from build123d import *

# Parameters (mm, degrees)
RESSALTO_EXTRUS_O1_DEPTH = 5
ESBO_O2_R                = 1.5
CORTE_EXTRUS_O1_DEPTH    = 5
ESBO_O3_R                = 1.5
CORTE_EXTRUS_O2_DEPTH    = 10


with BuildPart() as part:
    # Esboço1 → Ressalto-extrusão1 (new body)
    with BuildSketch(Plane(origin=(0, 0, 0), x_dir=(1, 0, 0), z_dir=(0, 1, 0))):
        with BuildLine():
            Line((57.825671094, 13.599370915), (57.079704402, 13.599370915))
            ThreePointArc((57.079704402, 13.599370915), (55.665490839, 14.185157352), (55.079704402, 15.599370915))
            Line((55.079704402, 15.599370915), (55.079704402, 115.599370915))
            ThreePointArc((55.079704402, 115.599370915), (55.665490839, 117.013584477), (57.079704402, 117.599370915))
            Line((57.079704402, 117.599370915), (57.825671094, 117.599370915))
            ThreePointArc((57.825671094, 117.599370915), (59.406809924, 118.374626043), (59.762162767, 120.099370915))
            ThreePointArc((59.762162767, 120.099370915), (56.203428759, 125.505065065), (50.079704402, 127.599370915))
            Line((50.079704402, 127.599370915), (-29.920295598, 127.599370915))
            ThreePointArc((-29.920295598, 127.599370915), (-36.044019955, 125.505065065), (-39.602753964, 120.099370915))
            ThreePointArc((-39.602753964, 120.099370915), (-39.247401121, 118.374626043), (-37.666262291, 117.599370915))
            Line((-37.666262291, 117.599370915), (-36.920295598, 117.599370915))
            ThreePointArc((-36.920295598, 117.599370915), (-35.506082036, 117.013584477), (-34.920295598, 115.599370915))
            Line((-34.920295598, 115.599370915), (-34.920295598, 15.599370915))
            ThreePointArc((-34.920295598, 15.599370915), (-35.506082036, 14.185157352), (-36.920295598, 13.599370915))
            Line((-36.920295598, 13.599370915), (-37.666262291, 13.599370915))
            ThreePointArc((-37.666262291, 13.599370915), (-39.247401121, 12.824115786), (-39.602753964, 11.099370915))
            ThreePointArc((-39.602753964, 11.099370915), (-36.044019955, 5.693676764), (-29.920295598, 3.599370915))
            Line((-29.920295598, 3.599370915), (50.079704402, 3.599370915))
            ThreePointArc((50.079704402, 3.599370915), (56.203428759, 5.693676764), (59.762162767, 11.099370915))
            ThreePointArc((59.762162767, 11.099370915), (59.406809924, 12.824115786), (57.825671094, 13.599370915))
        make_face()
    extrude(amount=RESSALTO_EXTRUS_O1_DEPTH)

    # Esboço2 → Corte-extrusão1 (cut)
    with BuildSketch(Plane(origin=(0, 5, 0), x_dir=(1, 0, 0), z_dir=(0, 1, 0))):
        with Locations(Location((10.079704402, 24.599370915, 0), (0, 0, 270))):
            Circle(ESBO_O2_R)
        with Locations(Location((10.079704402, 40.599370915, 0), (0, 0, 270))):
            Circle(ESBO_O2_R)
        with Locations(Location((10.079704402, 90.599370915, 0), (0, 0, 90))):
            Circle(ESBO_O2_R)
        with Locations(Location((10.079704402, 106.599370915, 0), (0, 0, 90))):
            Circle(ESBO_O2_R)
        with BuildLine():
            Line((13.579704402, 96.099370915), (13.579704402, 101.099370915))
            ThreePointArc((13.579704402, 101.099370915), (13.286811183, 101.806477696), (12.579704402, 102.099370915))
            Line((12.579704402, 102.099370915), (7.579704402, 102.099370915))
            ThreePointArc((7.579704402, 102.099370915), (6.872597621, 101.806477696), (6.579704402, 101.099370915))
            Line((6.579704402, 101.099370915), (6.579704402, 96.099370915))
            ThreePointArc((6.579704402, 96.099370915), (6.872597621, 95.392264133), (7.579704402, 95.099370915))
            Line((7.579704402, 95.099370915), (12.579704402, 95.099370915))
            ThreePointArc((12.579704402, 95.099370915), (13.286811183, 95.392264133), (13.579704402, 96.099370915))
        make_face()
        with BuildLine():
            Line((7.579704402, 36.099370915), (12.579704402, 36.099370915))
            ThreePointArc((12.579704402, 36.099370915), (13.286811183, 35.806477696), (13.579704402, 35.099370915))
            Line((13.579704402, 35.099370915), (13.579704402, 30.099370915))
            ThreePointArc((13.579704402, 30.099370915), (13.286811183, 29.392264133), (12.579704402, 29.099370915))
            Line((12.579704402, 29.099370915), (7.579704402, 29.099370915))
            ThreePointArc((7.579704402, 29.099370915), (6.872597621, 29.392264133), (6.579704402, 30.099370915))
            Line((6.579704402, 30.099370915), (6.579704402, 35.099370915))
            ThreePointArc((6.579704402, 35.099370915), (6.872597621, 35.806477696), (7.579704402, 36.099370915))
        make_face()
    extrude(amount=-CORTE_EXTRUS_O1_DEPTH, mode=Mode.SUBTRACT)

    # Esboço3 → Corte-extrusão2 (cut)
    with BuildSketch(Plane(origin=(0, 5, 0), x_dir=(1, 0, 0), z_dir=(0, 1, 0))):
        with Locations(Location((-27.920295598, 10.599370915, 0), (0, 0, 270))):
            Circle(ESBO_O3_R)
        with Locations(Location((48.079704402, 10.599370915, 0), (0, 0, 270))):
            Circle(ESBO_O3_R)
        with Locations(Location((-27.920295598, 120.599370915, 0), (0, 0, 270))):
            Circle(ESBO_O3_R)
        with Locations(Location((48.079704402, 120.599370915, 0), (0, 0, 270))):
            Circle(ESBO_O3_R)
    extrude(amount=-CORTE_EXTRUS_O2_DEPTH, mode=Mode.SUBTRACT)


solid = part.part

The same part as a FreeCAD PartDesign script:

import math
import FreeCAD as App
import Part
import Sketcher
from FreeCAD import Vector

doc = App.newDocument("Part")
body = doc.addObject("PartDesign::Body", "Body")

# Sketch on XZ plane
sketch1 = body.newObject("Sketcher::SketchObject", "Sketch")
sketch1.AttachmentSupport = (doc.getObject("XZ_Plane"), [""])
sketch1.MapMode = "FlatFace"
sketch1.addGeometry([
    Part.LineSegment(Vector(57.8, -13.6, 0), Vector(57.1, -13.6, 0)),  # 0
    Part.ArcOfCircle(Part.Circle(Vector(57.1, -15.6, 0), Vector(0, 0, 1), 2), math.radians(90), math.radians(180)),  # 1
    Part.LineSegment(Vector(55.1, -15.6, 0), Vector(55.1, -115.6, 0)),  # 2
    Part.ArcOfCircle(Part.Circle(Vector(57.1, -115.6, 0), Vector(0, 0, 1), 2), math.radians(180), math.radians(270)),  # 3
    Part.LineSegment(Vector(57.1, -117.6, 0), Vector(57.8, -117.6, 0)),  # 4
    Part.ArcOfCircle(Part.Circle(Vector(57.8, -119.6, 0), Vector(0, 0, 1), 2), math.radians(-14), math.radians(90)),  # 5
    Part.ArcOfCircle(Part.Circle(Vector(50.1, -117.6, 0), Vector(0, 0, 1), 10), math.radians(-90), math.radians(-14)),  # 6
    Part.LineSegment(Vector(50.1, -127.6, 0), Vector(-29.9, -127.6, 0)),  # 7
    Part.ArcOfCircle(Part.Circle(Vector(-29.9, -117.6, 0), Vector(0, 0, 1), 10), math.radians(-166), math.radians(-90)),  # 8
    Part.ArcOfCircle(Part.Circle(Vector(-37.7, -119.6, 0), Vector(0, 0, 1), 2), math.radians(90), math.radians(194)),  # 9
    Part.LineSegment(Vector(-37.7, -117.6, 0), Vector(-36.9, -117.6, 0)),  # 10
    Part.ArcOfCircle(Part.Circle(Vector(-36.9, -115.6, 0), Vector(0, 0, 1), 2), math.radians(-90), math.radians(0)),  # 11
    Part.LineSegment(Vector(-34.9, -115.6, 0), Vector(-34.9, -15.6, 0)),  # 12
    Part.ArcOfCircle(Part.Circle(Vector(-36.9, -15.6, 0), Vector(0, 0, 1), 2), math.radians(0), math.radians(90)),  # 13
    Part.LineSegment(Vector(-36.9, -13.6, 0), Vector(-37.7, -13.6, 0)),  # 14
    Part.ArcOfCircle(Part.Circle(Vector(-37.7, -11.6, 0), Vector(0, 0, 1), 2), math.radians(166), math.radians(270)),  # 15
    Part.ArcOfCircle(Part.Circle(Vector(-29.9, -13.6, 0), Vector(0, 0, 1), 10), math.radians(90), math.radians(166)),  # 16
    Part.LineSegment(Vector(-29.9, -3.6, 0), Vector(50.1, -3.6, 0)),  # 17
    Part.ArcOfCircle(Part.Circle(Vector(50.1, -13.6, 0), Vector(0, 0, 1), 10), math.radians(14), math.radians(90)),  # 18
    Part.ArcOfCircle(Part.Circle(Vector(57.8, -11.6, 0), Vector(0, 0, 1), 2), math.radians(-90), math.radians(14)),  # 19
], False)
sketch1.addConstraint([
    Sketcher.Constraint("Tangent", 0, 2, 1, 1),
    Sketcher.Constraint("Tangent", 1, 2, 2, 1),
    Sketcher.Constraint("Tangent", 2, 2, 3, 1),
    Sketcher.Constraint("Tangent", 3, 2, 4, 1),
    Sketcher.Constraint("Tangent", 4, 2, 5, 2),
    Sketcher.Constraint("Tangent", 5, 1, 6, 2),
    Sketcher.Constraint("Tangent", 6, 1, 7, 1),
    Sketcher.Constraint("Tangent", 7, 2, 8, 2),
    Sketcher.Constraint("Tangent", 8, 1, 9, 2),
    Sketcher.Constraint("Tangent", 9, 1, 10, 1),
    Sketcher.Constraint("Tangent", 10, 2, 11, 1),
    Sketcher.Constraint("Tangent", 11, 2, 12, 1),
    Sketcher.Constraint("Tangent", 12, 2, 13, 1),
    Sketcher.Constraint("Tangent", 13, 2, 14, 1),
    Sketcher.Constraint("Tangent", 14, 2, 15, 2),
    Sketcher.Constraint("Tangent", 15, 1, 16, 2),
    Sketcher.Constraint("Tangent", 16, 1, 17, 1),
    Sketcher.Constraint("Tangent", 17, 2, 18, 2),
    Sketcher.Constraint("Tangent", 18, 1, 19, 2),
    Sketcher.Constraint("Tangent", 19, 1, 0, 1),
    Sketcher.Constraint("Horizontal", 0),
    Sketcher.Constraint("Vertical", 2),
    Sketcher.Constraint("Horizontal", 4),
    Sketcher.Constraint("Horizontal", 7),
    Sketcher.Constraint("Horizontal", 10),
    Sketcher.Constraint("Vertical", 12),
    Sketcher.Constraint("Horizontal", 14),
    Sketcher.Constraint("Horizontal", 17),
    Sketcher.Constraint("Equal", 1, 3),
    Sketcher.Constraint("Equal", 3, 5),
    Sketcher.Constraint("Equal", 6, 8),
    Sketcher.Constraint("Equal", 5, 9),
    Sketcher.Constraint("Equal", 9, 11),
    Sketcher.Constraint("Equal", 11, 13),
    Sketcher.Constraint("Equal", 13, 15),
    Sketcher.Constraint("Equal", 8, 16),
    Sketcher.Constraint("Equal", 16, 18),
    Sketcher.Constraint("Equal", 15, 19),
    Sketcher.Constraint("Horizontal", 5, 3, 9, 3),
    Sketcher.Constraint("Horizontal", 1, 3, 13, 3),
    Sketcher.Constraint("Horizontal", 18, 3, 0, 2),
    Sketcher.Constraint("Horizontal", 8, 3, 3, 2),
    Sketcher.Constraint("Vertical", 9, 3, 15, 3),
    Sketcher.Constraint("Vertical", 6, 3, 18, 3),
    Sketcher.Constraint("Equal", 4, 10),
    Sketcher.Constraint("Radius", 1, 2.0),
    Sketcher.Constraint("Radius", 6, 10.0),
    Sketcher.Constraint("DistanceX", 7, 2, 7, 1, 80.0),
    Sketcher.Constraint("DistanceY", 2, 2, 2, 1, 100.0),
    Sketcher.Constraint("DistanceX", 6, 3, 3, 3, 7.0),
    Sketcher.Constraint("DistanceY", 1, 3, -1, 1, 15.599371),
    Sketcher.Constraint("DistanceX", -1, 1, 5, 3, 57.825671),
])
pad1 = body.newObject("PartDesign::Pad", "Pad")
pad1.Profile = sketch1
pad1.Length = 5
pad1.Reversed = True

# Sketch on XZ plane
sketch2 = body.newObject("Sketcher::SketchObject", "Sketch001")
sketch2.AttachmentSupport = (doc.getObject("XZ_Plane"), [""])
sketch2.MapMode = "FlatFace"
sketch2.AttachmentOffset = App.Placement(Vector(0, 0, -5), App.Rotation())
sketch2.addGeometry([
    Part.Circle(Vector(10.1, -24.6, 0), Vector(0, 0, 1), 1.5),  # 0
    Part.Circle(Vector(10.1, -40.6, 0), Vector(0, 0, 1), 1.5),  # 1
    Part.Circle(Vector(10.1, -90.6, 0), Vector(0, 0, 1), 1.5),  # 2
    Part.Circle(Vector(10.1, -106.6, 0), Vector(0, 0, 1), 1.5),  # 3
    Part.LineSegment(Vector(13.6, -96.1, 0), Vector(13.6, -101.1, 0)),  # 4
    Part.ArcOfCircle(Part.Circle(Vector(12.6, -101.1, 0), Vector(0, 0, 1), 1), math.radians(-90), math.radians(0)),  # 5
    Part.LineSegment(Vector(12.6, -102.1, 0), Vector(7.6, -102.1, 0)),  # 6
    Part.ArcOfCircle(Part.Circle(Vector(7.6, -101.1, 0), Vector(0, 0, 1), 1), math.radians(-180), math.radians(-90)),  # 7
    Part.LineSegment(Vector(6.6, -101.1, 0), Vector(6.6, -96.1, 0)),  # 8
    Part.ArcOfCircle(Part.Circle(Vector(7.6, -96.1, 0), Vector(0, 0, 1), 1), math.radians(90), math.radians(180)),  # 9
    Part.LineSegment(Vector(7.6, -95.1, 0), Vector(12.6, -95.1, 0)),  # 10
    Part.ArcOfCircle(Part.Circle(Vector(12.6, -96.1, 0), Vector(0, 0, 1), 1), math.radians(0), math.radians(90)),  # 11
    Part.LineSegment(Vector(12.6, -36.1, 0), Vector(7.6, -36.1, 0)),  # 12
    Part.ArcOfCircle(Part.Circle(Vector(7.6, -35.1, 0), Vector(0, 0, 1), 1), math.radians(-180), math.radians(-90)),  # 13
    Part.LineSegment(Vector(6.6, -35.1, 0), Vector(6.6, -30.1, 0)),  # 14
    Part.ArcOfCircle(Part.Circle(Vector(7.6, -30.1, 0), Vector(0, 0, 1), 1), math.radians(90), math.radians(180)),  # 15
    Part.LineSegment(Vector(7.6, -29.1, 0), Vector(12.6, -29.1, 0)),  # 16
    Part.ArcOfCircle(Part.Circle(Vector(12.6, -30.1, 0), Vector(0, 0, 1), 1), math.radians(0), math.radians(90)),  # 17
    Part.LineSegment(Vector(13.6, -30.1, 0), Vector(13.6, -35.1, 0)),  # 18
    Part.ArcOfCircle(Part.Circle(Vector(12.6, -35.1, 0), Vector(0, 0, 1), 1), math.radians(-90), math.radians(0)),  # 19
], False)
sketch2.addConstraint([
    Sketcher.Constraint("Tangent", 4, 2, 5, 2),
    Sketcher.Constraint("Tangent", 5, 1, 6, 1),
    Sketcher.Constraint("Tangent", 6, 2, 7, 2),
    Sketcher.Constraint("Tangent", 7, 1, 8, 1),
    Sketcher.Constraint("Tangent", 8, 2, 9, 2),
    Sketcher.Constraint("Tangent", 9, 1, 10, 1),
    Sketcher.Constraint("Tangent", 10, 2, 11, 2),
    Sketcher.Constraint("Tangent", 11, 1, 4, 1),
    Sketcher.Constraint("Tangent", 12, 2, 13, 2),
    Sketcher.Constraint("Tangent", 13, 1, 14, 1),
    Sketcher.Constraint("Tangent", 14, 2, 15, 2),
    Sketcher.Constraint("Tangent", 15, 1, 16, 1),
    Sketcher.Constraint("Tangent", 16, 2, 17, 2),
    Sketcher.Constraint("Tangent", 17, 1, 18, 1),
    Sketcher.Constraint("Tangent", 18, 2, 19, 2),
    Sketcher.Constraint("Tangent", 19, 1, 12, 1),
    Sketcher.Constraint("Vertical", 4),
    Sketcher.Constraint("Horizontal", 6),
    Sketcher.Constraint("Vertical", 8),
    Sketcher.Constraint("Horizontal", 10),
    Sketcher.Constraint("Horizontal", 12),
    Sketcher.Constraint("Vertical", 14),
    Sketcher.Constraint("Horizontal", 16),
    Sketcher.Constraint("Vertical", 18),
    Sketcher.Constraint("Equal", 0, 1),
    Sketcher.Constraint("Equal", 1, 2),
    Sketcher.Constraint("Equal", 2, 3),
    Sketcher.Constraint("Equal", 5, 7),
    Sketcher.Constraint("Equal", 7, 9),
    Sketcher.Constraint("Equal", 9, 11),
    Sketcher.Constraint("Equal", 11, 13),
    Sketcher.Constraint("Equal", 13, 15),
    Sketcher.Constraint("Equal", 15, 17),
    Sketcher.Constraint("Equal", 17, 19),
    Sketcher.Constraint("Vertical", 0, 3, 1, 3),
    Sketcher.Constraint("Vertical", 1, 3, 2, 3),
    Sketcher.Constraint("Vertical", 2, 3, 3, 3),
    Sketcher.Constraint("Vertical", 9, 3, 13, 3),
    Sketcher.Constraint("Vertical", 11, 3, 17, 3),
    Sketcher.Constraint("Equal", 16, 4),
    Sketcher.Constraint("Equal", 8, 14),
    Sketcher.Constraint("Diameter", 0, 3.0),
    Sketcher.Constraint("Radius", 5, 1.0),
    Sketcher.Constraint("DistanceX", 6, 2, 6, 1, 5.0),
    Sketcher.Constraint("DistanceY", 1, 3, 0, 3, 16.0),
    Sketcher.Constraint("DistanceY", 2, 3, 1, 3, 50.0),
    Sketcher.Constraint("DistanceY", 3, 3, 2, 3, 16.0),
    Sketcher.Constraint("DistanceY", 9, 3, 13, 3, 61.0),
    Sketcher.Constraint("DistanceX", 3, 3, 5, 3, 2.5),
    Sketcher.Constraint("DistanceY", 3, 3, 5, 3, 5.5),
    Sketcher.Constraint("DistanceY", 0, 3, -1, 1, 24.599371),
    Sketcher.Constraint("DistanceX", -1, 1, 0, 3, 10.079704),
])
pocket1 = body.newObject("PartDesign::Pocket", "Pocket")
pocket1.Profile = sketch2
pocket1.Length = 5
pocket1.Reversed = True

# Sketch on XZ plane
sketch3 = body.newObject("Sketcher::SketchObject", "Sketch002")
sketch3.AttachmentSupport = (doc.getObject("XZ_Plane"), [""])
sketch3.MapMode = "FlatFace"
sketch3.AttachmentOffset = App.Placement(Vector(0, 0, -5), App.Rotation())
sketch3.addGeometry([
    Part.Circle(Vector(-27.9, -10.6, 0), Vector(0, 0, 1), 1.5),
    Part.Circle(Vector(48.1, -10.6, 0), Vector(0, 0, 1), 1.5),
    Part.Circle(Vector(-27.9, -120.6, 0), Vector(0, 0, 1), 1.5),
    Part.Circle(Vector(48.1, -120.6, 0), Vector(0, 0, 1), 1.5),
], False)
sketch3.addConstraint([
    Sketcher.Constraint("Equal", 0, 1),
    Sketcher.Constraint("Equal", 1, 2),
    Sketcher.Constraint("Equal", 2, 3),
    Sketcher.Constraint("Horizontal", 0, 3, 1, 3),
    Sketcher.Constraint("Horizontal", 2, 3, 3, 3),
    Sketcher.Constraint("Vertical", 0, 3, 2, 3),
    Sketcher.Constraint("Vertical", 1, 3, 3, 3),
    Sketcher.Constraint("Diameter", 0, 3.0),
    Sketcher.Constraint("DistanceX", 0, 3, 1, 3, 76.0),
    Sketcher.Constraint("DistanceY", 2, 3, 0, 3, 110.0),
    Sketcher.Constraint("DistanceY", 0, 3, -1, 1, 10.599371),
    Sketcher.Constraint("DistanceX", 0, 3, -1, 1, 27.920296),
])
pocket2 = body.newObject("PartDesign::Pocket", "Pocket001")
pocket2.Profile = sketch3
pocket2.Length = 10
pocket2.Reversed = True

doc.recompute()
